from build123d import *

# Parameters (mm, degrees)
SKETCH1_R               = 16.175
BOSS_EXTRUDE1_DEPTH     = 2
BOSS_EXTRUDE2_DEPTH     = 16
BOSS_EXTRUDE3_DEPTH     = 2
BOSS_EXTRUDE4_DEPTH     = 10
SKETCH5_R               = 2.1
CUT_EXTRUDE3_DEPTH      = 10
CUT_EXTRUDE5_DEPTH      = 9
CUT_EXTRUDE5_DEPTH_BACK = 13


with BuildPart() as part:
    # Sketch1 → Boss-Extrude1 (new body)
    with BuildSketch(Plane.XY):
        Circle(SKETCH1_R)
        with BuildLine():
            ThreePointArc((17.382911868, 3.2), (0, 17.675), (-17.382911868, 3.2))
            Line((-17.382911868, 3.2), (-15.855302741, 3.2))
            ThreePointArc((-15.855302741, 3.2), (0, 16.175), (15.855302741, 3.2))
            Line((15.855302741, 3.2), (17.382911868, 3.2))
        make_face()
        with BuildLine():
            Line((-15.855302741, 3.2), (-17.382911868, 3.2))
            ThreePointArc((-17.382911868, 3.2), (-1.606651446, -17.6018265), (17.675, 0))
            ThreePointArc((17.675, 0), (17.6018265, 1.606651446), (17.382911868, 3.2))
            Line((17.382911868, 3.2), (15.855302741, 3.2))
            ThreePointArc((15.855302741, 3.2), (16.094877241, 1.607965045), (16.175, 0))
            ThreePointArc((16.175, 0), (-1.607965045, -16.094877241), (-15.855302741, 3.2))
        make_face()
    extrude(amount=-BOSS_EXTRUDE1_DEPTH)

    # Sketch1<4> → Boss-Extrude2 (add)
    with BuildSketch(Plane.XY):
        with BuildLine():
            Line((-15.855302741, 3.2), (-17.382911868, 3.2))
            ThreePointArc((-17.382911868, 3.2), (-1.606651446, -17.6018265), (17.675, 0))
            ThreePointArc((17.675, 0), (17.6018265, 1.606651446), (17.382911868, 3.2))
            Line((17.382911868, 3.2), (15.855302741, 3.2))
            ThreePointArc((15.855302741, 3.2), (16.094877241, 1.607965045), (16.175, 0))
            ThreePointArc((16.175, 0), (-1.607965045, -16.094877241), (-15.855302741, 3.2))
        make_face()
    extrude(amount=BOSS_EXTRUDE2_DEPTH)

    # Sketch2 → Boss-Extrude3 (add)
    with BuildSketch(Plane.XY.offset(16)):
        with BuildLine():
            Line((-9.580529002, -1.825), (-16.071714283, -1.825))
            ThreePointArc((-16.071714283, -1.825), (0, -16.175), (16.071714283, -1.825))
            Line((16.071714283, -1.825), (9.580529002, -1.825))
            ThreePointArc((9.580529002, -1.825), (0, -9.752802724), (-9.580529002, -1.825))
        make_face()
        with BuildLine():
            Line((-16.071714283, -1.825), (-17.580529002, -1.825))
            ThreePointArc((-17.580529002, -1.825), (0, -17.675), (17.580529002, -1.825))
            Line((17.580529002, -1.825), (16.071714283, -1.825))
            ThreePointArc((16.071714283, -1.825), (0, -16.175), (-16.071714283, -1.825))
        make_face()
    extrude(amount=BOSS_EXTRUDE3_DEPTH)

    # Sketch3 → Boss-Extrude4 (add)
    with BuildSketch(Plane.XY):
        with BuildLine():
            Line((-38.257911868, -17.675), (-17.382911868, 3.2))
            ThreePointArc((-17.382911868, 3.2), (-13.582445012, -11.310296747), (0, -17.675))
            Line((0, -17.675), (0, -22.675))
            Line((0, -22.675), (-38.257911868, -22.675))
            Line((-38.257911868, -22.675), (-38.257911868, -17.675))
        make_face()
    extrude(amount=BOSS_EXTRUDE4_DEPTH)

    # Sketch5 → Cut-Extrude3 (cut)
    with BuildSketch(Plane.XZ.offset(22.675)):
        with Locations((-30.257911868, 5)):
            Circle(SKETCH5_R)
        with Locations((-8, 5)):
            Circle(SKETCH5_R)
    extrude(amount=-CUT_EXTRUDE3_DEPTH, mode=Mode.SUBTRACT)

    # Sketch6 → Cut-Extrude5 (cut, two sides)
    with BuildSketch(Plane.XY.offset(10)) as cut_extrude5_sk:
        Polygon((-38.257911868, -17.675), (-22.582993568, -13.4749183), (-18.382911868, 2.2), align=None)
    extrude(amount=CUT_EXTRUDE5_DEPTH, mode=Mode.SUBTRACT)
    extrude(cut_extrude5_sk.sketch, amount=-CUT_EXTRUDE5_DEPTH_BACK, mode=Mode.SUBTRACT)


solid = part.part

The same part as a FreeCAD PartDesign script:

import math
import FreeCAD as App
import Part
import Sketcher

V = App.Vector
Q = App.Units.Quantity


def add_polygon(sketch, points):
    """Adds a closed chain of lines whose ends are joined by coincident constraints."""
    first, n = sketch.GeometryCount, len(points)
    for a, b in zip(points, points[1:] + points[:1]):
        sketch.addGeometry(Part.LineSegment(App.Vector(*a, 0), App.Vector(*b, 0)), False)
    for i in range(n):
        sketch.addConstraint(Sketcher.Constraint("Coincident", first + i, 2, first + (i + 1) % n, 1))

doc = App.newDocument("Part")
body = doc.addObject("PartDesign::Body", "Body")

# Sketch on XY plane
sketch1 = doc.addObject("Sketcher::SketchObject", "Sketch")
body.addObject(sketch1)
sketch1.AttachmentSupport = (doc.XY_Plane, [""])
sketch1.MapMode = "FlatFace"
sketch1.addGeometry(Part.ArcOfCircle(Part.Circle(V(0, 0, 0), V(0, 0, 1), 17.7), math.radians(10), math.radians(170)), False)
sketch1.addGeometry(Part.ArcOfCircle(Part.Circle(V(0, 0, 0), V(0, 0, 1), 17.7), math.radians(170), math.radians(360)), False)
sketch1.addGeometry(Part.ArcOfCircle(Part.Circle(V(0, 0, 0), V(0, 0, 1), 17.7), math.radians(0), math.radians(10.43)), False)
sketch1.addConstraint(Sketcher.Constraint("Tangent", 0, 2, 1, 1))
sketch1.addConstraint(Sketcher.Constraint("Tangent", 1, 2, 2, 1))
sketch1.addConstraint(Sketcher.Constraint("Tangent", 2, 2, 0, 1))
sketch1.addConstraint(Sketcher.Constraint("Coincident", 0, 3, -1, 1))
sketch1.addConstraint(Sketcher.Constraint("PointOnObject", 1, 2, -1))
sketch1.addConstraint(Sketcher.Constraint("Horizontal", 0, 2, 2, 2))
sketch1.addConstraint(Sketcher.Constraint("Radius", 0, 17.675))
sketch1.addConstraint(Sketcher.Constraint("DistanceY", -1, 1, 0, 2, 3.2))
pad1 = doc.addObject("PartDesign::Pad", "Pad")
body.addObject(pad1)
pad1.Profile = sketch1
pad1.Length = 2
pad1.Reversed = True

# Sketch on XY plane
sketch2 = doc.addObject("Sketcher::SketchObject", "Sketch001")
body.addObject(sketch2)
sketch2.AttachmentSupport = (doc.XY_Plane, [""])
sketch2.MapMode = "FlatFace"
sketch2.addGeometry(Part.LineSegment(V(-15.9, 3.2, 0), V(-17.4, 3.2, 0)), False)
sketch2.addGeometry(Part.ArcOfCircle(Part.Circle(V(0, 0, 0), V(0, 0, 1), 17.7), math.radians(170), math.radians(360)), False)
sketch2.addGeometry(Part.ArcOfCircle(Part.Circle(V(0, 0, 0), V(0, 0, 1), 17.7), math.radians(0), math.radians(10.43)), False)
sketch2.addGeometry(Part.LineSegment(V(17.4, 3.2, 0), V(15.9, 3.2, 0)), False)
sketch2.addGeometry(Part.ArcOfCircle(Part.Circle(V(0, 0, 0), V(0, 0, 1), 16.2), math.radians(0), math.radians(11.41)), False)
sketch2.addGeometry(Part.ArcOfCircle(Part.Circle(V(0, 0, 0), V(0, 0, 1), 16.2), math.radians(169), math.radians(360)), False)
sketch2.addConstraint(Sketcher.Constraint("Coincident", 0, 2, 1, 1))
sketch2.addConstraint(Sketcher.Constraint("Tangent", 1, 2, 2, 1))
sketch2.addConstraint(Sketcher.Constraint("Coincident", 2, 2, 3, 1))
sketch2.addConstraint(Sketcher.Constraint("Coincident", 3, 2, 4, 2))
sketch2.addConstraint(Sketcher.Constraint("Tangent", 4, 1, 5, 2))
sketch2.addConstraint(Sketcher.Constraint("Coincident", 5, 1, 0, 1))
sketch2.addConstraint(Sketcher.Constraint("Horizontal", 0))
sketch2.addConstraint(Sketcher.Constraint("Horizontal", 3))
sketch2.addConstraint(Sketcher.Constraint("Coincident", 1, 3, -1, 1))
sketch2.addConstraint(Sketcher.Constraint("Coincident", 4, 3, -1, 1))
sketch2.addConstraint(Sketcher.Constraint("Equal", 1, 2))
sketch2.addConstraint(Sketcher.Constraint("Equal", 4, 5))
sketch2.addConstraint(Sketcher.Constraint("PointOnObject", 1, 2, -1))
sketch2.addConstraint(Sketcher.Constraint("PointOnObject", 4, 1, -1))
sketch2.addConstraint(Sketcher.Constraint("Horizontal", 0, 2, 2, 2))
sketch2.addConstraint(Sketcher.Constraint("Radius", 1, 17.675))
sketch2.addConstraint(Sketcher.Constraint("Radius", 4, 16.175))
sketch2.addConstraint(Sketcher.Constraint("DistanceY", -1, 1, 0, 2, 3.2))
pad2 = doc.addObject("PartDesign::Pad", "Pad001")
body.addObject(pad2)
pad2.Profile = sketch2
pad2.Length = 16

# Sketch on XY plane
sketch3 = doc.addObject("Sketcher::SketchObject", "Sketch002")
body.addObject(sketch3)
sketch3.AttachmentSupport = (doc.XY_Plane, [""])
sketch3.MapMode = "FlatFace"
sketch3.AttachmentOffset = App.Placement(V(0, 0, 16), App.Rotation())
sketch3.addGeometry(Part.LineSegment(V(-10, -2, 0), V(-18, -2, 0)), False)
sketch3.addGeometry(Part.ArcOfCircle(Part.Circle(V(0, 0, 0), V(0, 0, 1), 18), math.radians(-174), math.radians(-6)), False)
sketch3.addGeometry(Part.LineSegment(V(18, -2, 0), V(10, -2, 0)), False)
sketch3.addGeometry(Part.ArcOfCircle(Part.Circle(V(0, 0, 0), V(0, 0, 1), 10), math.radians(-169), math.radians(-11)), False)
sketch3.addConstraint(Sketcher.Constraint("Coincident", 0, 2, 1, 1))
sketch3.addConstraint(Sketcher.Constraint("Coincident", 1, 2, 2, 1))
sketch3.addConstraint(Sketcher.Constraint("Coincident", 2, 2, 3, 2))
sketch3.addConstraint(Sketcher.Constraint("Coincident", 3, 1, 0, 1))
sketch3.addConstraint(Sketcher.Constraint("Horizontal", 0))
sketch3.addConstraint(Sketcher.Constraint("Horizontal", 2))
sketch3.addConstraint(Sketcher.Constraint("Coincident", 1, 3, -1, 1))
sketch3.addConstraint(Sketcher.Constraint("Coincident", 3, 3, -1, 1))
sketch3.addConstraint(Sketcher.Constraint("Horizontal", 0, 2, 1, 2))
sketch3.addConstraint(Sketcher.Constraint("DistanceX", 0, 2, 0, 1, 8.0))
sketch3.addConstraint(Sketcher.Constraint("Radius", 1, 17.675))
sketch3.addConstraint(Sketcher.Constraint("DistanceY", 0, 2, -1, 1, 1.825))
pad3 = doc.addObject("PartDesign::Pad", "Pad002")
body.addObject(pad3)
pad3.Profile = sketch3
pad3.Length = 2

# Sketch on XY plane
sketch4 = doc.addObject("Sketcher::SketchObject", "Sketch003")
body.addObject(sketch4)
sketch4.AttachmentSupport = (doc.XY_Plane, [""])
sketch4.MapMode = "FlatFace"
sketch4.addGeometry(Part.LineSegment(V(-17, 3, 0), V(-38, -18, 0)), False)
sketch4.addGeometry(Part.LineSegment(V(-38, -18, 0), V(-38, -23, 0)), False)
sketch4.addGeometry(Part.LineSegment(V(-38, -23, 0), V(0, -23, 0)), False)
sketch4.addGeometry(Part.LineSegment(V(0, -23, 0), V(0, -18, 0)), False)
sketch4.addGeometry(Part.ArcOfCircle(Part.Circle(V(0, 0, 0), V(0, 0, 1), 18), math.radians(170), math.radians(270)), False)
sketch4.addConstraint(Sketcher.Constraint("Coincident", 0, 2, 1, 1))
sketch4.addConstraint(Sketcher.Constraint("Coincident", 1, 2, 2, 1))
sketch4.addConstraint(Sketcher.Constraint("Coincident", 2, 2, 3, 1))
sketch4.addConstraint(Sketcher.Constraint("Coincident", 3, 2, 4, 2))
sketch4.addConstraint(Sketcher.Constraint("Coincident", 4, 1, 0, 1))
sketch4.addConstraint(Sketcher.Constraint("Vertical", 1))
sketch4.addConstraint(Sketcher.Constraint("Horizontal", 2))
sketch4.addConstraint(Sketcher.Constraint("Vertical", 3))
sketch4.addConstraint(Sketcher.Constraint("Coincident", 4, 3, -1, 1))
sketch4.addConstraint(Sketcher.Constraint("PointOnObject", 2, 2, -2))
sketch4.addConstraint(Sketcher.Constraint("Horizontal", 0, 2, 3, 2))
sketch4.addConstraint(Sketcher.Constraint("DistanceY", 1, 2, 1, 1, 5.0))
sketch4.addConstraint(Sketcher.Constraint("Angle", 0, Q("-135 deg")))
sketch4.addConstraint(Sketcher.Constraint("Radius", 4, 17.675))
sketch4.addConstraint(Sketcher.Constraint("DistanceY", -1, 1, 4, 1, 3.2))
pad4 = doc.addObject("PartDesign::Pad", "Pad003")
body.addObject(pad4)
pad4.Profile = sketch4
pad4.Length = 10

# Sketch on XZ plane
sketch5 = doc.addObject("Sketcher::SketchObject", "Sketch004")
body.addObject(sketch5)
sketch5.AttachmentSupport = (doc.XZ_Plane, [""])
sketch5.MapMode = "FlatFace"
sketch5.AttachmentOffset = App.Placement(V(0, 0, 22.675), App.Rotation())
sketch5.addGeometry(Part.Circle(V(-30.3, 5, 0), V(0, 0, 1), 2.1), False)
sketch5.addGeometry(Part.Circle(V(-8, 5, 0), V(0, 0, 1), 2.1), False)
sketch5.addConstraint(Sketcher.Constraint("Equal", 0, 1))
sketch5.addConstraint(Sketcher.Constraint("Horizontal", 0, 3, 1, 3))
sketch5.addConstraint(Sketcher.Constraint("Diameter", 0, 4.2))
sketch5.addConstraint(Sketcher.Constraint("DistanceY", -1, 1, 0, 3, 5.0))
sketch5.addConstraint(Sketcher.Constraint("DistanceX", 1, 3, -1, 1, 8.0))
sketch5.addConstraint(Sketcher.Constraint("DistanceX", 0, 3, -1, 1, 30.257912))
pocket1 = doc.addObject("PartDesign::Pocket", "Pocket")
body.addObject(pocket1)
pocket1.Profile = sketch5
pocket1.Length = 10

# Sketch on XY plane
sketch6 = doc.addObject("Sketcher::SketchObject", "Sketch005")
body.addObject(sketch6)
sketch6.AttachmentSupport = (doc.XY_Plane, [""])
sketch6.MapMode = "FlatFace"
sketch6.AttachmentOffset = App.Placement(V(0, 0, 10), App.Rotation())
add_polygon(sketch6, [(-38, -18), (-23, -13), (-18, 2)])  # lines 0-2
sketch6.addConstraint(Sketcher.Constraint("Equal", 0, 1))
sketch6.addConstraint(Sketcher.Constraint("Angle", 0, Q("15 deg")))
sketch6.addConstraint(Sketcher.Constraint("Angle", 1, Q("75 deg")))
sketch6.addConstraint(Sketcher.Constraint("DistanceY", -1, 1, 1, 2, 2.2))
sketch6.addConstraint(Sketcher.Constraint("DistanceY", 2, 2, -1, 1, 17.675))
sketch6.addConstraint(Sketcher.Constraint("DistanceX", 1, 2, -1, 1, 18.382912))
pocket2 = doc.addObject("PartDesign::Pocket", "Pocket001")
body.addObject(pocket2)
pocket2.Profile = sketch6
pocket2.Type = "ThroughAll"
pocket2.Midplane = True

doc.recompute()
